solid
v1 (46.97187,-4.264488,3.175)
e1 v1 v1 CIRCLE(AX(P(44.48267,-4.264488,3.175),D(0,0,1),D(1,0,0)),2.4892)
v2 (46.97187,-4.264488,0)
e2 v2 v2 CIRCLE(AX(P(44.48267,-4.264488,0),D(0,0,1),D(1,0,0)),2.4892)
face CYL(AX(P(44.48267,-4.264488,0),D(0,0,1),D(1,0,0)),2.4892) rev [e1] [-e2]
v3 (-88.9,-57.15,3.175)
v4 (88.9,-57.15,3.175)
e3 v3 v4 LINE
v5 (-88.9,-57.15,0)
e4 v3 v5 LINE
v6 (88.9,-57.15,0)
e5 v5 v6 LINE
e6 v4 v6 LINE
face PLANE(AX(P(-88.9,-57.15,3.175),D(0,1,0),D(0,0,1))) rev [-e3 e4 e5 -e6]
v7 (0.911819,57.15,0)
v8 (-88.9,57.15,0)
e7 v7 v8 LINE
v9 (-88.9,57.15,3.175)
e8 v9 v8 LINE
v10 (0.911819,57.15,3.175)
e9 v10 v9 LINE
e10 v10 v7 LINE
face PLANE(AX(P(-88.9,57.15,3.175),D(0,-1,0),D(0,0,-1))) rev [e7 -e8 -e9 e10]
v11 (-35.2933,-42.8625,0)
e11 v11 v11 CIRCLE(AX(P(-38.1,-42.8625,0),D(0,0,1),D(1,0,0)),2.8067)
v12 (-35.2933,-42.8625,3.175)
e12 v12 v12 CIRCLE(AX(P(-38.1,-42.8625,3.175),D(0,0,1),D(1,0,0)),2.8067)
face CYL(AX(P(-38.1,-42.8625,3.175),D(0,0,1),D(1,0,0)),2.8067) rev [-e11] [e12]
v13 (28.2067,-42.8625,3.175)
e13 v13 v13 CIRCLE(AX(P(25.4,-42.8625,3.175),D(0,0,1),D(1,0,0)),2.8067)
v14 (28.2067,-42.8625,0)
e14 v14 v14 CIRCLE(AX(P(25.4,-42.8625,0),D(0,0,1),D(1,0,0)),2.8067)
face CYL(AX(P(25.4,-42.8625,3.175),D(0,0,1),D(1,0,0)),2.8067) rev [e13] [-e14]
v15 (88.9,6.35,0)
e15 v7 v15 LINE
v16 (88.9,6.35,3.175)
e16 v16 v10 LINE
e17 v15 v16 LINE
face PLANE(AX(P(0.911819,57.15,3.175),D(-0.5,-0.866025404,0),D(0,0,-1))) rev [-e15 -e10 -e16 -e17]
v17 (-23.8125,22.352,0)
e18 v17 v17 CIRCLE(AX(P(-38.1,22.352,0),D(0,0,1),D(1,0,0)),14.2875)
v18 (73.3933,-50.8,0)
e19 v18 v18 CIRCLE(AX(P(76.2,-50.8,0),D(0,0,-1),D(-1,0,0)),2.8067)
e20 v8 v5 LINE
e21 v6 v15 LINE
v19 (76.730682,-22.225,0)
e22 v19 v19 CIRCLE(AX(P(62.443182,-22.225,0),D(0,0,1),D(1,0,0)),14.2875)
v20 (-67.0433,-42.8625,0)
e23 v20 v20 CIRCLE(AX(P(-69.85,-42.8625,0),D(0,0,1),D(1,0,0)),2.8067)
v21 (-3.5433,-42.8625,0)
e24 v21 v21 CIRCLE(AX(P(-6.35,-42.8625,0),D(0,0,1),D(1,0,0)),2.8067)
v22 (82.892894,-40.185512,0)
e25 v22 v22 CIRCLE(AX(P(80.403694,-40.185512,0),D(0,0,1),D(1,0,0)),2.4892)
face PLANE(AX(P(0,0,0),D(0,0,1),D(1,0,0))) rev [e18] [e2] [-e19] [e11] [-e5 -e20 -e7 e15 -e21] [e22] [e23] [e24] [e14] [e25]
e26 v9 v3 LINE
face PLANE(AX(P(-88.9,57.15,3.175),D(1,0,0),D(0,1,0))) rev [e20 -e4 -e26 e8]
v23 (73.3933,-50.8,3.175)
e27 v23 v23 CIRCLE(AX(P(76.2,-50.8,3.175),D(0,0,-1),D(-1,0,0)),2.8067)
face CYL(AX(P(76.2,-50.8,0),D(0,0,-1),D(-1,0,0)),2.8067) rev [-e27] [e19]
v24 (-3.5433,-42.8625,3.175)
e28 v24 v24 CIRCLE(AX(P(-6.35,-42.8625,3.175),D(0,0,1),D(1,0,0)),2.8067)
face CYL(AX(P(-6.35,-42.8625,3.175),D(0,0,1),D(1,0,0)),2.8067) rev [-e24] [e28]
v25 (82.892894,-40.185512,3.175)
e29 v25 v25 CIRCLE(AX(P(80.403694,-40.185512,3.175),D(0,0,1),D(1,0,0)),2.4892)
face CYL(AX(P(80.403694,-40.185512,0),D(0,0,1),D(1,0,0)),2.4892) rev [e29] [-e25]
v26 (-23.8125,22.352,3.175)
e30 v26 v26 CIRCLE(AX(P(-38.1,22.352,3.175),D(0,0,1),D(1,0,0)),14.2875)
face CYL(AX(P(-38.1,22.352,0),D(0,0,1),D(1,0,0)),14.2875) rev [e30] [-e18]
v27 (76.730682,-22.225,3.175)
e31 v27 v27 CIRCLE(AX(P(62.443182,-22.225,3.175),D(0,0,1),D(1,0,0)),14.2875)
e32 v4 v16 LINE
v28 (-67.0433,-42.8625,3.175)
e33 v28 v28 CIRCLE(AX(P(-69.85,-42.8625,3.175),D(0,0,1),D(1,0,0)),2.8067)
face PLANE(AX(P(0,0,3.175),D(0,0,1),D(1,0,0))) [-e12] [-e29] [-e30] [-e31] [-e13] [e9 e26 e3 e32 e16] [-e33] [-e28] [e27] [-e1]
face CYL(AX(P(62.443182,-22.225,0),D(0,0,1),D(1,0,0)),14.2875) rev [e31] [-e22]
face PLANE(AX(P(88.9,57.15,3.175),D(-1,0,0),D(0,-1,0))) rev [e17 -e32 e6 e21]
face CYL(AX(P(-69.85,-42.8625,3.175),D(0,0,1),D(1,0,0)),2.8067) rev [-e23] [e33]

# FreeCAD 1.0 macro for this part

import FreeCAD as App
import Part
import Sketcher
Q = App.Units.Quantity


def edges_at(feature, points):
    """Names of the edges that pass closest to the given points."""
    edges = feature.Shape.Edges
    near = lambda p: min(range(len(edges)), key=lambda i: edges[i].distToShape(Part.Vertex(*p))[0])
    return sorted({f"Edge{near(p) + 1}" for p in points})


def add_polygon(sketch, points):
    """Adds a closed chain of lines whose ends are joined by coincident constraints."""
    first, n = sketch.GeometryCount, len(points)
    for a, b in zip(points, points[1:] + points[:1]):
        sketch.addGeometry(Part.LineSegment(App.Vector(*a, 0), App.Vector(*b, 0)), False)
    for i in range(n):
        sketch.addConstraint(Sketcher.Constraint("Coincident", first + i, 2, first + (i + 1) % n, 1))

doc = App.newDocument("Part")
body = doc.addObject("PartDesign::Body", "Body")

# Sketch on XY plane
sketch1 = body.newObject("Sketcher::SketchObject", "Sketch")
sketch1.AttachmentSupport = (doc.getObject("XY_Plane"), [""])
sketch1.MapMode = "FlatFace"
add_polygon(sketch1, [(-89, 57), (-89, -57), (89, -57), (89, 57)])  # lines 0-3
sketch1.addConstraint([
    Sketcher.Constraint("Vertical", 0),
    Sketcher.Constraint("Horizontal", 1),
    Sketcher.Constraint("Vertical", 2),
    Sketcher.Constraint("Horizontal", 3),
    Sketcher.Constraint("Symmetric", 0, 2, 2, 2, -1, 1),
    Sketcher.Constraint("DistanceX", 1, 1, 1, 2, Q("7 in")),
    Sketcher.Constraint("DistanceY", 0, 2, 0, 1, Q("4.5 in")),
])
pad1 = body.newObject("PartDesign::Pad", "Pad")
pad1.Profile = sketch1
pad1.Length = Q("0.125 in")

# Sketch on XY plane
sketch2 = body.newObject("Sketcher::SketchObject", "Sketch001")
sketch2.AttachmentSupport = (doc.getObject("XY_Plane"), [""])
sketch2.MapMode = "FlatFace"
sketch2.AttachmentOffset = App.Placement(App.Vector(0, 0, 0.125 * 25.4), App.Rotation())
sketch2.addGeometry(Part.Circle(App.Vector(-38, 22, 0), App.Vector(0, 0, 1), 14), False)
sketch2.addConstraint([
    Sketcher.Constraint("Diameter", 0, Q("1.125 in")),
    Sketcher.Constraint("DistanceX", 0, 3, -1, 1, Q("1.5 in")),
    Sketcher.Constraint("DistanceY", -1, 1, 0, 3, Q("0.88 in")),
])
pocket1 = body.newObject("PartDesign::Pocket", "Pocket")
pocket1.Profile = sketch2
pocket1.Length = Q("0.125 in")

# Sketch on XY plane
sketch3 = body.newObject("Sketcher::SketchObject", "Sketch002")
sketch3.AttachmentSupport = (doc.getObject("XY_Plane"), [""])
sketch3.MapMode = "FlatFace"
sketch3.AttachmentOffset = App.Placement(App.Vector(0, 0, 0.125 * 25.4), App.Rotation())
sketch3.addGeometry([
    Part.Circle(App.Vector(-69.8, -42.9, 0), App.Vector(0, 0, 1), 2.8),
    Part.Circle(App.Vector(-38.1, -42.9, 0), App.Vector(0, 0, 1), 2.8),
    Part.Circle(App.Vector(-6.3, -42.9, 0), App.Vector(0, 0, 1), 2.8),
    Part.Circle(App.Vector(25.4, -42.9, 0), App.Vector(0, 0, 1), 2.8),
], False)
sketch3.addConstraint([
    Sketcher.Constraint("Equal", 0, 1),
    Sketcher.Constraint("Equal", 1, 2),
    Sketcher.Constraint("Equal", 2, 3),
    Sketcher.Constraint("Horizontal", 0, 3, 1, 3),
    Sketcher.Constraint("Horizontal", 1, 3, 2, 3),
    Sketcher.Constraint("Horizontal", 2, 3, 3, 3),
    Sketcher.Constraint("Diameter", 0, Q("0.221 in")),
    Sketcher.Constraint("DistanceX", -1, 1, 3, 3, Q("1 in")),
    Sketcher.Constraint("DistanceX", 1, 3, -1, 1, Q("1.5 in")),
    Sketcher.Constraint("DistanceX", 0, 3, 2, 3, Q("2.5 in")),
    Sketcher.Constraint("DistanceX", 0, 3, -1, 1, Q("2.75 in")),
    Sketcher.Constraint("DistanceY", 0, 3, -1, 1, Q("1.6875 in")),
])
doc.recompute()
hole = body.newObject("PartDesign::Hole", "Hole")
hole.Profile = sketch3
hole.ThreadType = "None"
hole.Diameter = Q("0.221 in")
hole.DepthType = "ThroughAll"

# Sketch on XY plane
sketch4 = body.newObject("Sketcher::SketchObject", "Sketch003")
sketch4.AttachmentSupport = (doc.getObject("XY_Plane"), [""])
sketch4.MapMode = "FlatFace"
sketch4.AttachmentOffset = App.Placement(App.Vector(0, 0, 0.125 * 25.4), App.Rotation())
sketch4.addGeometry([
    Part.Circle(App.Vector(62.4, -22.2, 0), App.Vector(0, 0, 1), 14.3),
    Part.Circle(App.Vector(44.5, -4.3, 0), App.Vector(0, 0, 1), 2.5),
    Part.Circle(App.Vector(80.4, -40.2, 0), App.Vector(0, 0, 1), 2.5),
], False)
sketch4.addConstraint([
    Sketcher.Constraint("Equal", 1, 2),
    Sketcher.Constraint("Diameter", 0, Q("1.125 in")),
    Sketcher.Constraint("Diameter", 1, Q("0.196 in")),
    Sketcher.Constraint("DistanceY", 0, 3, -1, 1, Q("0.875 in")),
    Sketcher.Constraint("DistanceX", -1, 1, 0, 3, 62.443182),
    Sketcher.Constraint("DistanceX", -1, 1, 1, 3, 44.48267),
    Sketcher.Constraint("DistanceY", 1, 3, -1, 1, 4.264488),
    Sketcher.Constraint("DistanceX", -1, 1, 2, 3, 80.403694),
    Sketcher.Constraint("DistanceY", 2, 3, -1, 1, 40.185512),
])
pocket2 = body.newObject("PartDesign::Pocket", "Pocket001")
pocket2.Profile = sketch4
pocket2.Type = "ThroughAll"
doc.recompute()

chamfer = body.newObject("PartDesign::Chamfer", "Chamfer")
chamfer.Base = (pocket2, edges_at(pocket2, [(88.9, 57.15, 1.587)]))
chamfer.ChamferType = "Two distances"
chamfer.Size = Q("2 in")
chamfer.Size2 = 87.988181
chamfer.FlipDirection = True

# Sketch on XY plane
sketch5 = body.newObject("Sketcher::SketchObject", "Sketch004")
sketch5.AttachmentSupport = (doc.getObject("XY_Plane"), [""])
sketch5.MapMode = "FlatFace"
sketch5.addGeometry(Part.Circle(App.Vector(76.2, -50.8, 0), App.Vector(0, 0, 1), 2.8), False)
sketch5.addConstraint([
    Sketcher.Constraint("Diameter", 0, Q("0.221 in")),
    Sketcher.Constraint("DistanceX", -1, 1, 0, 3, Q("3 in")),
    Sketcher.Constraint("DistanceY", 0, 3, -1, 1, Q("2 in")),
])
doc.recompute()
hole2 = body.newObject("PartDesign::Hole", "Hole001")
hole2.Profile = sketch5
hole2.ThreadType = "None"
hole2.Diameter = Q("0.221 in")
hole2.DepthType = "ThroughAll"
hole2.Reversed = True

doc.recompute()
